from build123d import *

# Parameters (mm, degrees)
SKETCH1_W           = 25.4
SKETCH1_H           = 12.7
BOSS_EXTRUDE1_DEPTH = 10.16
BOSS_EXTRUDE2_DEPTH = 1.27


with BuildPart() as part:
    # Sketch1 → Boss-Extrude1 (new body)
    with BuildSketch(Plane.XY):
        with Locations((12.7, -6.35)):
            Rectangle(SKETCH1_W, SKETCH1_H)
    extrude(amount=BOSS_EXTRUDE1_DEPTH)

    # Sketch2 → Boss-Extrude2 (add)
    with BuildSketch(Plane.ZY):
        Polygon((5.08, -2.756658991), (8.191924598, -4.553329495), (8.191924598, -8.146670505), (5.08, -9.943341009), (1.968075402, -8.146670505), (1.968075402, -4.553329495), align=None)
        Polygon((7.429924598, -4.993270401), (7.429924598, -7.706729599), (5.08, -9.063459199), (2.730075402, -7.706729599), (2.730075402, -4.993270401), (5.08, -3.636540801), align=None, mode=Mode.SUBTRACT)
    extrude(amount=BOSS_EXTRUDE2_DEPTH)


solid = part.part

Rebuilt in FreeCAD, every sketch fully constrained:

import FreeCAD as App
import Part
import Sketcher
from FreeCAD import Vector
Q = App.Units.Quantity


def add_polygon(sketch, points):
    """Adds a closed chain of lines whose ends are joined by coincident constraints."""
    first, n = sketch.GeometryCount, len(points)
    for a, b in zip(points, points[1:] + points[:1]):
        sketch.addGeometry(Part.LineSegment(App.Vector(*a, 0), App.Vector(*b, 0)), False)
    for i in range(n):
        sketch.addConstraint(Sketcher.Constraint("Coincident", first + i, 2, first + (i + 1) % n, 1))

doc = App.newDocument("Part")
body = doc.addObject("PartDesign::Body", "Body")

sketch1 = doc.addObject("Sketcher::SketchObject", "Sketch")
body.addObject(sketch1)
sketch1.AttachmentSupport = (doc.XY_Plane, [""])
sketch1.MapMode = "FlatFace"
add_polygon(sketch1, [(0, 0), (0, -13), (25, -13), (25, 0)])
sketch1.addConstraint(Sketcher.Constraint("Vertical", 0))
sketch1.addConstraint(Sketcher.Constraint("Horizontal", 1))
sketch1.addConstraint(Sketcher.Constraint("Vertical", 2))
sketch1.addConstraint(Sketcher.Constraint("Horizontal", 3))
sketch1.addConstraint(Sketcher.Constraint("Coincident", 3, 2, -1, 1))
sketch1.addConstraint(Sketcher.Constraint("DistanceX", 1, 1, 1, 2, Q("1 in")))
sketch1.addConstraint(Sketcher.Constraint("DistanceY", 0, 2, 0, 1, Q("0.5 in")))
pad1 = doc.addObject("PartDesign::Pad", "Pad")
body.addObject(pad1)
pad1.Profile = sketch1
pad1.Length = Q("0.4 in")

sketch2 = doc.addObject("Sketcher::SketchObject", "Sketch001")
body.addObject(sketch2)
sketch2.AttachmentSupport = (doc.YZ_Plane, [""])
sketch2.MapMode = "FlatFace"
add_polygon(sketch2, [(-4.6, 8.2), (-2.8, 5.1), (-4.6, 2), (-8.1, 2), (-9.9, 5.1), (-8.1, 8.2)])
add_polygon(sketch2, [(-5, 7.4), (-7.7, 7.4), (-9.1, 5.1), (-7.7, 2.7), (-5, 2.7), (-3.6, 5.1)])
sketch2.addConstraint(Sketcher.Constraint("Horizontal", 2))
sketch2.addConstraint(Sketcher.Constraint("Horizontal", 5))
sketch2.addConstraint(Sketcher.Constraint("Horizontal", 6))
sketch2.addConstraint(Sketcher.Constraint("Horizontal", 9))
sketch2.addConstraint(Sketcher.Constraint("Parallel", 0, 3))
sketch2.addConstraint(Sketcher.Constraint("Parallel", 1, 4))
sketch2.addConstraint(Sketcher.Constraint("Parallel", 4, 7))
sketch2.addConstraint(Sketcher.Constraint("Parallel", 3, 8))
sketch2.addConstraint(Sketcher.Constraint("Parallel", 7, 10))
sketch2.addConstraint(Sketcher.Constraint("Parallel", 8, 11))
sketch2.addConstraint(Sketcher.Constraint("Horizontal", 0, 2, 3, 2))
sketch2.addConstraint(Sketcher.Constraint("Horizontal", 3, 2, 7, 2))
sketch2.addConstraint(Sketcher.Constraint("Horizontal", 7, 2, 10, 2))
sketch2.addConstraint(Sketcher.Constraint("Vertical", 2, 2, 4, 2))
sketch2.addConstraint(Sketcher.Constraint("Vertical", 1, 2, 5, 2))
sketch2.addConstraint(Sketcher.Constraint("Vertical", 6, 2, 8, 2))
sketch2.addConstraint(Sketcher.Constraint("Angle", 0, Q("-60 deg")))
sketch2.addConstraint(Sketcher.Constraint("DistanceY", -1, 1, 0, 2, Q("0.2 in")))
sketch2.addConstraint(Sketcher.Constraint("DistanceY", 6, 2, 4, 2, Q("0.03 in")))
sketch2.addConstraint(Sketcher.Constraint("DistanceX", 2, 2, 2, 1, Q("3.593341 mm")))
sketch2.addConstraint(Sketcher.Constraint("DistanceX", 6, 2, 6, 1, Q("2.713459 mm")))
sketch2.addConstraint(Sketcher.Constraint("DistanceX", 6, 2, 5, 2, Q("3.1534 mm")))
sketch2.addConstraint(Sketcher.Constraint("Distance", 0, Q("3.593341 mm")))
sketch2.addConstraint(Sketcher.Constraint("DistanceX", 0, 2, -1, 1, Q("2.756659 mm")))
pad2 = doc.addObject("PartDesign::Pad", "Pad001")
body.addObject(pad2)
pad2.Profile = sketch2
pad2.Length = Q("0.05 in")
pad2.Reversed = True

doc.recompute()
